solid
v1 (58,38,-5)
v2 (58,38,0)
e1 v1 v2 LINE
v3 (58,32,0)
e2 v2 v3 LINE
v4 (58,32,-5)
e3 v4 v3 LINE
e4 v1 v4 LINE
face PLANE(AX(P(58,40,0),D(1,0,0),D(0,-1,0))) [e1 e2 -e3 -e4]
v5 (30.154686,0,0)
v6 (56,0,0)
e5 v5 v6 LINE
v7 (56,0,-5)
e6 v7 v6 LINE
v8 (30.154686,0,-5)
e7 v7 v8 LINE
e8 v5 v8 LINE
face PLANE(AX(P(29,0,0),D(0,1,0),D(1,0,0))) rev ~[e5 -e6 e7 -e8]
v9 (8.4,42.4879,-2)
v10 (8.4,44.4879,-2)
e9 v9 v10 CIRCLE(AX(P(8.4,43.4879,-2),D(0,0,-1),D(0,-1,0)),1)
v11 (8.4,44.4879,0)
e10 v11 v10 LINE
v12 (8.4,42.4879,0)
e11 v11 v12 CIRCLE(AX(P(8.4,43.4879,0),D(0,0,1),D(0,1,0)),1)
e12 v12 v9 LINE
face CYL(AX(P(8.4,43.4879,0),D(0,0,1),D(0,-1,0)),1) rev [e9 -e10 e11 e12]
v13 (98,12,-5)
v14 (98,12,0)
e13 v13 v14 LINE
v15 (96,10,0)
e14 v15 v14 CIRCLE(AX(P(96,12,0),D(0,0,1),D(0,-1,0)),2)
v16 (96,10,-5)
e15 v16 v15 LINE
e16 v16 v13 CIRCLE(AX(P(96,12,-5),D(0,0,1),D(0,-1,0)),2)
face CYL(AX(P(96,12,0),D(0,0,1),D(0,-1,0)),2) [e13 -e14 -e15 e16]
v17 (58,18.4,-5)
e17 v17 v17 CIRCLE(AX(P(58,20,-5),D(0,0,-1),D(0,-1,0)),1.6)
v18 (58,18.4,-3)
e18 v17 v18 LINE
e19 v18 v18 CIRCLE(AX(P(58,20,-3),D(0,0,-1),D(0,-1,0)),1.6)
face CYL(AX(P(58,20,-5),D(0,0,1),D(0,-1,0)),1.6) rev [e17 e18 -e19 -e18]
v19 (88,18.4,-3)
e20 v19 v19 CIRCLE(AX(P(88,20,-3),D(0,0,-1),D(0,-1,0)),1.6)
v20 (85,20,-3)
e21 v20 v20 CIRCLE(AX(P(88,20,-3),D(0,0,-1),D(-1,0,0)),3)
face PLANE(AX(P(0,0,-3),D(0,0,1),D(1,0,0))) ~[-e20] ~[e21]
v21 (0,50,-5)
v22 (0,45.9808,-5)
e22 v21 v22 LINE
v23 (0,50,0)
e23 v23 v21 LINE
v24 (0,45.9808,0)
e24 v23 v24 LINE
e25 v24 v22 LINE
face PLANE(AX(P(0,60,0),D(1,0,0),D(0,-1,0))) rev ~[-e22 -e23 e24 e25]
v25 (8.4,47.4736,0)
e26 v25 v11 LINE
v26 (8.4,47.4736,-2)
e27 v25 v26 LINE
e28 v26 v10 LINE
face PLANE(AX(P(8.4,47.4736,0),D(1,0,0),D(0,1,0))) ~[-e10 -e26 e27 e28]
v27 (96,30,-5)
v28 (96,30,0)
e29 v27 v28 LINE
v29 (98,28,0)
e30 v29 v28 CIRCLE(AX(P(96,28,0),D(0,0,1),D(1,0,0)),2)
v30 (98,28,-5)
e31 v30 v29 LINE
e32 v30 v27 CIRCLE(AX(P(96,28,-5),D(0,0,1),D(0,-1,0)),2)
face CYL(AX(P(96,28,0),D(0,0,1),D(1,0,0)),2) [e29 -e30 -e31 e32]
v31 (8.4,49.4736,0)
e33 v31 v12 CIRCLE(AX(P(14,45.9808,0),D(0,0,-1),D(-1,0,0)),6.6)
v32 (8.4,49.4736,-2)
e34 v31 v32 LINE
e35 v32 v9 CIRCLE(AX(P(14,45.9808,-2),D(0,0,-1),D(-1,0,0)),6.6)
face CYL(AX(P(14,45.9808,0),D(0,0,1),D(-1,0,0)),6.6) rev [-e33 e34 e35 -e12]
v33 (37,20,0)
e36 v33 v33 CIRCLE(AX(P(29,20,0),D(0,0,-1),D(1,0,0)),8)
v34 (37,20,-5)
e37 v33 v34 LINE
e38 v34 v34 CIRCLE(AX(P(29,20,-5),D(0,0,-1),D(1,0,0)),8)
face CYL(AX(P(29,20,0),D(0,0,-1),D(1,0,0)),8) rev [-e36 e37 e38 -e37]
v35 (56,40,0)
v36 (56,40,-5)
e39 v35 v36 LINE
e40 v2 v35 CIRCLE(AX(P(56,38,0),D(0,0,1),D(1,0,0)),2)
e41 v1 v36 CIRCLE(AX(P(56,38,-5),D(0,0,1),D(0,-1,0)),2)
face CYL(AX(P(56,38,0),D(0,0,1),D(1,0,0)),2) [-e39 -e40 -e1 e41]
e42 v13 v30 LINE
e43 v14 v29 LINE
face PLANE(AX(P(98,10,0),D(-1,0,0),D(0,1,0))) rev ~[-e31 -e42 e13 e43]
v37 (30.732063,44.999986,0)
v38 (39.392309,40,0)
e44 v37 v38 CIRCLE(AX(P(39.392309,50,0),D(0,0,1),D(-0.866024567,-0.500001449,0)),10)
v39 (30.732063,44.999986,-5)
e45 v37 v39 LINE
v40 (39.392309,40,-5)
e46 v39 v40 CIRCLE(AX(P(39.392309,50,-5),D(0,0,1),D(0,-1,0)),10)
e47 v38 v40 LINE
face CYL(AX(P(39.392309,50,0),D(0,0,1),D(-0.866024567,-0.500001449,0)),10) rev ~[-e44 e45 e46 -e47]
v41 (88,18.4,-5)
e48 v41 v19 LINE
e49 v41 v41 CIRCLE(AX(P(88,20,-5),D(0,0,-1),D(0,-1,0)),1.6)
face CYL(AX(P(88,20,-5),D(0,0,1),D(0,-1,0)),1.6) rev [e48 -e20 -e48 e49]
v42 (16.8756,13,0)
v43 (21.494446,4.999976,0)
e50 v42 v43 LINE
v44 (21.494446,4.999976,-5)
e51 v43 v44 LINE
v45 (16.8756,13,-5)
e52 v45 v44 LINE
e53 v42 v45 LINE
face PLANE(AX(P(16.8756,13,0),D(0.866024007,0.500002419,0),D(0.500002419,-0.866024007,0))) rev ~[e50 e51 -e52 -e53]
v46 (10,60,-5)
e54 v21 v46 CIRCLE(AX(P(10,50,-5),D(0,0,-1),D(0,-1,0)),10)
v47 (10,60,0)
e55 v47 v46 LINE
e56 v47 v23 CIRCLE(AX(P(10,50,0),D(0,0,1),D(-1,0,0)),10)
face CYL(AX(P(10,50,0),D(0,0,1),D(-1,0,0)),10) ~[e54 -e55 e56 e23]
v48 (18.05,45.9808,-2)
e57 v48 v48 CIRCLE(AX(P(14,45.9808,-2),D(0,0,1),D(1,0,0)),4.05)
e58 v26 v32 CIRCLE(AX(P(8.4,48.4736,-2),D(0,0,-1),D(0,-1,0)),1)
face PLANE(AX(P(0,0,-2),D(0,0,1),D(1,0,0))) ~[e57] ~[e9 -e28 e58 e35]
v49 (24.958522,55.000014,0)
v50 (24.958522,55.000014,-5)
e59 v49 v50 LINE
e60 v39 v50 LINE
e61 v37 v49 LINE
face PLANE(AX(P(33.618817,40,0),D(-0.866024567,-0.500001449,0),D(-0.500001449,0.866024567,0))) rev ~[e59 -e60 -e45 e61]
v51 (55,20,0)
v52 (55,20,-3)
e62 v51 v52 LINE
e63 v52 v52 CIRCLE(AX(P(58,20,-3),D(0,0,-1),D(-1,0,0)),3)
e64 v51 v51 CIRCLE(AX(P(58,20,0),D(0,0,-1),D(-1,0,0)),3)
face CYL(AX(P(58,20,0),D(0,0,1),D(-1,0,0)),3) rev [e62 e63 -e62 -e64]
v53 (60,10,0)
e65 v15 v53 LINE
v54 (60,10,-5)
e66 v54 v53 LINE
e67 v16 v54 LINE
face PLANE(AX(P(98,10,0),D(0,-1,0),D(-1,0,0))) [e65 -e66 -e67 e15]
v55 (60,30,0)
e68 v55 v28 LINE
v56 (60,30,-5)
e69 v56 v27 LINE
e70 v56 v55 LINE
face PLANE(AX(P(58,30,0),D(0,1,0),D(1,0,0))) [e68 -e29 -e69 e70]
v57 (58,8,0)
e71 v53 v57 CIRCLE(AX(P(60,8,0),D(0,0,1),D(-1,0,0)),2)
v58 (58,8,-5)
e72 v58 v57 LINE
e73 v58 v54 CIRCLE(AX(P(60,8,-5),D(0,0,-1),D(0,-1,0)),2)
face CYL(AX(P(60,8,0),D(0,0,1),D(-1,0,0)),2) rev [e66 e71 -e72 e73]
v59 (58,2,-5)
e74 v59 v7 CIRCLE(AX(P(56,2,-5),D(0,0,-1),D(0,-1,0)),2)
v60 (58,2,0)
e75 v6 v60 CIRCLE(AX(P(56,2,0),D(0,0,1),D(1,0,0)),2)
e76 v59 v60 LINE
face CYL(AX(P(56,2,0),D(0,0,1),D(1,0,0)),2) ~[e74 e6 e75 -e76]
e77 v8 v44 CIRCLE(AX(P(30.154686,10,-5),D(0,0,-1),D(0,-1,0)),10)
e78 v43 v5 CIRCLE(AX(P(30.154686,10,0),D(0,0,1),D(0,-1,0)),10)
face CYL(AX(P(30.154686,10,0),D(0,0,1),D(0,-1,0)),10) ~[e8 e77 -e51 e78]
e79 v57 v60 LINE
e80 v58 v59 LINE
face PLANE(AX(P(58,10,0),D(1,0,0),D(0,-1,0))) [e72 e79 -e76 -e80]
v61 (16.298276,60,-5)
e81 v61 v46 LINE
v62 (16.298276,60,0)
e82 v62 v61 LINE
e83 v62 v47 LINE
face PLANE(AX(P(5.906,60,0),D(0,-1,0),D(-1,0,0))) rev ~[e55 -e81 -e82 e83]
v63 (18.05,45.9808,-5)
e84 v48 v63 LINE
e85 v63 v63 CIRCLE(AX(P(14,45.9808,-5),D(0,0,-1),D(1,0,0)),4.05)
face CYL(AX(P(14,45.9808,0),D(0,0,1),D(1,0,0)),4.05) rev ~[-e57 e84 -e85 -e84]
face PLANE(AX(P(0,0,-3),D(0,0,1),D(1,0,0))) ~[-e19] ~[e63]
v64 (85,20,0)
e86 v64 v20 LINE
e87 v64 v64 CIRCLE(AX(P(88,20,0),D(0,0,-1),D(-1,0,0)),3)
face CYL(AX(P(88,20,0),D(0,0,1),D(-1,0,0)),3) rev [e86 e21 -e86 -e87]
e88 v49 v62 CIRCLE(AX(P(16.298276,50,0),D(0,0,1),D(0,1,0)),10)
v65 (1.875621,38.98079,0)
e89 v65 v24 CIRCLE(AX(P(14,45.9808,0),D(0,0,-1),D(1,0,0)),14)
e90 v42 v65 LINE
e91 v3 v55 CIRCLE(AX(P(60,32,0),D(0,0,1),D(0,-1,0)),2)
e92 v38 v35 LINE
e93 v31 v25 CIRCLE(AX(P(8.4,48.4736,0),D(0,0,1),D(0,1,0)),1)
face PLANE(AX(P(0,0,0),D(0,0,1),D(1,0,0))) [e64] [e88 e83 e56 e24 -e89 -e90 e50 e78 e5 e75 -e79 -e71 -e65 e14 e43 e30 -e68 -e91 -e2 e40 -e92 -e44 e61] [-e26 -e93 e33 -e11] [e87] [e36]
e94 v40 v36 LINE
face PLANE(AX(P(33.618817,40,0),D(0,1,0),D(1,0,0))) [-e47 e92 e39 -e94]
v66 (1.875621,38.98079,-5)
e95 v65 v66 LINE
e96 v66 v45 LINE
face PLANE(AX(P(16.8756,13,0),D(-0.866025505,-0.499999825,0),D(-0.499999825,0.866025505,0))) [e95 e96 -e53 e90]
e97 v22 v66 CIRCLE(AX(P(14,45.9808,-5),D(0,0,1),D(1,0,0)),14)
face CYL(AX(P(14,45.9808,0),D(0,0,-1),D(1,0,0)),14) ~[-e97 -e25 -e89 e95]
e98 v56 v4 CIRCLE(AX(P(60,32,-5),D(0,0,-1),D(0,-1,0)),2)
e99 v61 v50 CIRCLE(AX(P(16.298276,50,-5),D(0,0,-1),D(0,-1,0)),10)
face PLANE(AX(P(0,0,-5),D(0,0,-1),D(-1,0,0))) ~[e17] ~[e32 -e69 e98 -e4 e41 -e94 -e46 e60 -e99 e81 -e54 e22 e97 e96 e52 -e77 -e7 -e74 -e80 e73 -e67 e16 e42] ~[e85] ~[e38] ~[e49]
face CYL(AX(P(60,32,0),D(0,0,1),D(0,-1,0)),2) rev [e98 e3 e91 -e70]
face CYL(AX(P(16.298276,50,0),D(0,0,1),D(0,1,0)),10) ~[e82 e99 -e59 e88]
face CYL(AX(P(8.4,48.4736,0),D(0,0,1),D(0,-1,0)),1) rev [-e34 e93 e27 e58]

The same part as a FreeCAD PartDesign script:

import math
import FreeCAD as App
import Part
import Sketcher

V = App.Vector
Q = App.Units.Quantity


def edges_at(feature, points):
    """Names of the edges that pass closest to the given points."""
    edges = feature.Shape.Edges
    near = lambda p: min(range(len(edges)), key=lambda i: edges[i].distToShape(Part.Vertex(*p))[0])
    return sorted({f"Edge{near(p) + 1}" for p in points})


def add_polygon(sketch, points):
    """Adds a closed chain of lines whose ends are joined by coincident constraints."""
    first, n = sketch.GeometryCount, len(points)
    for a, b in zip(points, points[1:] + points[:1]):
        sketch.addGeometry(Part.LineSegment(App.Vector(*a, 0), App.Vector(*b, 0)), False)
    for i in range(n):
        sketch.addConstraint(Sketcher.Constraint("Coincident", first + i, 2, first + (i + 1) % n, 1))

doc = App.newDocument("Part")
params = doc.addObject("Spreadsheet::Sheet", "Params")
for row, (alias, value) in enumerate([
    ("sketch1_diameter", "16 mm"),
    ("sketch1_radius", "14 mm"),
    ("sketch1_diameter2", "8.1 mm"),
    ("sketch1_width", "40 mm"),
    ("sketch1_height", "10 mm"),
    ("pad1_length", "5 mm"),
    ("sketch2_diameter", "3.2 mm"),
    ("hole_diameter", "3.2 mm"),
    ("hole_depth", "10 mm"),
    ("fillet_radius", "2 mm"),
    ("fillet2_radius", "10 mm"),
    ("sketch3_diameter", "6 mm"),
    ("pocket1_length", "3 mm"),
    ("sketch4_radius", "1 mm"),
    ("sketch4_radius2", "6.6 mm"),
    ("sketch4_diameter", "8.1 mm"),
    ("pocket2_length", "2 mm"),
    ("pocket3_length", "5 mm"),
], start=1):
    params.set(f"A{row}", alias)
    params.set(f"B{row}", "=" + value)
    params.setAlias(f"B{row}", alias)

body = doc.addObject("PartDesign::Body", "Body")

sketch1 = body.newObject("Sketcher::SketchObject", "Sketch")
sketch1.AttachmentSupport = (doc.getObject("XY_Plane"), [""])
sketch1.MapMode = "FlatFace"
sketch1.addGeometry(Part.LineSegment(V(58, 0, 0), V(58, 10, 0)), False)
sketch1.addGeometry(Part.LineSegment(V(58, 10, 0), V(98, 10, 0)), False)
sketch1.addGeometry(Part.LineSegment(V(98, 10, 0), V(98, 30, 0)), False)
sketch1.addGeometry(Part.LineSegment(V(98, 30, 0), V(58, 30, 0)), False)
sketch1.addGeometry(Part.LineSegment(V(58, 30, 0), V(58, 40, 0)), False)
sketch1.addGeometry(Part.LineSegment(V(58, 40, 0), V(33.6, 40, 0)), False)
sketch1.addGeometry(Part.LineSegment(V(33.6, 40, 0), V(22.1, 60, 0)), False)
sketch1.addGeometry(Part.LineSegment(V(22.1, 60, 0), V(0, 60, 0)), False)
sketch1.addGeometry(Part.LineSegment(V(0, 60, 0), V(0, 46, 0)), False)
sketch1.addGeometry(Part.ArcOfCircle(Part.Circle(V(14, 46, 0), V(0, 0, 1), 14), math.radians(180), math.radians(210)), False)
sketch1.addGeometry(Part.LineSegment(V(1.9, 39, 0), V(16.9, 13, 0)), False)
sketch1.addGeometry(Part.LineSegment(V(16.9, 13, 0), V(24.4, 0, 0)), False)
sketch1.addGeometry(Part.LineSegment(V(24.4, 0, 0), V(58, 0, 0)), False)
sketch1.addGeometry(Part.Circle(V(29, 20, 0), V(0, 0, 1), 8), False)
sketch1.addGeometry(Part.Circle(V(14, 46, 0), V(0, 0, 1), 4), False)
sketch1.addConstraint(Sketcher.Constraint("Coincident", 0, 2, 1, 1))
sketch1.addConstraint(Sketcher.Constraint("Coincident", 1, 2, 2, 1))
sketch1.addConstraint(Sketcher.Constraint("Coincident", 2, 2, 3, 1))
sketch1.addConstraint(Sketcher.Constraint("Coincident", 3, 2, 4, 1))
sketch1.addConstraint(Sketcher.Constraint("Coincident", 4, 2, 5, 1))
sketch1.addConstraint(Sketcher.Constraint("Coincident", 5, 2, 6, 1))
sketch1.addConstraint(Sketcher.Constraint("Coincident", 6, 2, 7, 1))
sketch1.addConstraint(Sketcher.Constraint("Coincident", 7, 2, 8, 1))
sketch1.addConstraint(Sketcher.Constraint("Tangent", 8, 2, 9, 1))
sketch1.addConstraint(Sketcher.Constraint("Tangent", 9, 2, 10, 1))
sketch1.addConstraint(Sketcher.Constraint("Coincident", 10, 2, 11, 1))
sketch1.addConstraint(Sketcher.Constraint("Coincident", 11, 2, 12, 1))
sketch1.addConstraint(Sketcher.Constraint("Coincident", 12, 2, 0, 1))
sketch1.addConstraint(Sketcher.Constraint("Vertical", 0))
sketch1.addConstraint(Sketcher.Constraint("Horizontal", 1))
sketch1.addConstraint(Sketcher.Constraint("Vertical", 2))
sketch1.addConstraint(Sketcher.Constraint("Horizontal", 3))
sketch1.addConstraint(Sketcher.Constraint("Vertical", 4))
sketch1.addConstraint(Sketcher.Constraint("Horizontal", 5))
sketch1.addConstraint(Sketcher.Constraint("Horizontal", 7))
sketch1.addConstraint(Sketcher.Constraint("Vertical", 8))
sketch1.addConstraint(Sketcher.Constraint("Horizontal", 12))
sketch1.addConstraint(Sketcher.Constraint("Coincident", 14, 3, 9, 3))
sketch1.addConstraint(Sketcher.Constraint("PointOnObject", 7, 2, -2))
sketch1.addConstraint(Sketcher.Constraint("PointOnObject", 11, 2, -1))
sketch1.addConstraint(Sketcher.Constraint("Parallel", 6, 10))
sketch1.addConstraint(Sketcher.Constraint("Parallel", 10, 11))
sketch1.addConstraint(Sketcher.Constraint("Vertical", 0, 2, 3, 2))
sketch1.addConstraint(Sketcher.Constraint("Equal", 0, 4))
sketch1.addConstraint(Sketcher.Constraint("Diameter", 13, Q("16 mm")))
sketch1.addConstraint(Sketcher.Constraint("Radius", 9, Q("14 mm")))
sketch1.addConstraint(Sketcher.Constraint("Diameter", 14, Q("8.1 mm")))
sketch1.addConstraint(Sketcher.Constraint("DistanceX", 1, 1, 1, 2, Q("40 mm")))
sketch1.addConstraint(Sketcher.Constraint("DistanceY", 0, 1, 0, 2, Q("10 mm")))
sketch1.addConstraint(Sketcher.Constraint("DistanceY", 2, 1, 2, 2, Q("20 mm")))
sketch1.addConstraint(Sketcher.Constraint("Angle", 10, Q("-60 deg")))
sketch1.addConstraint(Sketcher.Constraint("Distance", 10, Q("30 mm")))
sketch1.addConstraint(Sketcher.Constraint("DistanceY", -1, 1, 13, 3, Q("20 mm")))
sketch1.addConstraint(Sketcher.Constraint("DistanceX", -1, 1, 1, 2, Q("98 mm")))
sketch1.addConstraint(Sketcher.Constraint("DistanceY", -1, 1, 6, 2, Q("60 mm")))
sketch1.addConstraint(Sketcher.Constraint("DistanceX", 13, 3, 1, 2, Q("69 mm")))
sketch1.addConstraint(Sketcher.Constraint("DistanceY", -1, 1, 10, 2, Q("13 mm")))
sketch1.addConstraint(Sketcher.Constraint("DistanceX", 5, 2, 5, 1, Q("24.3812 mm")))
sketch1.setExpression("Constraints[29]", "Params.sketch1_diameter")
sketch1.setExpression("Constraints[30]", "Params.sketch1_radius")
sketch1.setExpression("Constraints[31]", "Params.sketch1_diameter2")
sketch1.setExpression("Constraints[32]", "Params.sketch1_width")
sketch1.setExpression("Constraints[33]", "Params.sketch1_height")
pad1 = body.newObject("PartDesign::Pad", "Pad")
pad1.Profile = sketch1
pad1.setExpression("Length", "Params.pad1_length")

sketch2 = body.newObject("Sketcher::SketchObject", "Sketch001")
sketch2.AttachmentSupport = (doc.getObject("XY_Plane"), [""])
sketch2.MapMode = "FlatFace"
sketch2.AttachmentOffset = App.Placement(V(0, 0, 5), App.Rotation())
sketch2.addGeometry(Part.Circle(V(88, 20, 0), V(0, 0, 1), 1.6), False)
sketch2.addGeometry(Part.Circle(V(58, 20, 0), V(0, 0, 1), 1.6), False)
sketch2.addConstraint(Sketcher.Constraint("Equal", 0, 1))
sketch2.addConstraint(Sketcher.Constraint("Horizontal", 0, 3, 1, 3))
sketch2.addConstraint(Sketcher.Constraint("Diameter", 0, Q("3.2 mm")))
sketch2.addConstraint(Sketcher.Constraint("DistanceX", -1, 1, 0, 3, Q("88 mm")))
sketch2.addConstraint(Sketcher.Constraint("DistanceY", -1, 1, 0, 3, Q("20 mm")))
sketch2.addConstraint(Sketcher.Constraint("DistanceX", -1, 1, 1, 3, Q("58 mm")))
sketch2.setExpression("Constraints[2]", "Params.sketch2_diameter")
doc.recompute()
hole = body.newObject("PartDesign::Hole", "Hole")
hole.Profile = sketch2
hole.ThreadType = "None"
hole.setExpression("Diameter", "Params.hole_diameter")
hole.DepthType = "Dimension"
hole.setExpression("Depth", "Params.hole_depth")
hole.DrillPoint = "Flat"
doc.recompute()

fillet = body.newObject("PartDesign::Fillet", "Fillet")
fillet.Base = (hole, edges_at(hole, [
    (58, 40, 2.5),
    (58, 30, 2.5),
    (98, 30, 2.5),
    (98, 10, 2.5),
    (58, 0, 2.5),
    (58, 10, 2.5),
]))
fillet.setExpression("Radius", "Params.fillet_radius")
doc.recompute()

fillet2 = body.newObject("PartDesign::Fillet", "Fillet001")
fillet2.Base = (fillet, edges_at(fillet, [
    (24.381, 0, 2.5),
    (0, 60, 2.5),
    (22.072, 60, 2.5),
    (33.619, 40, 2.5),
]))
fillet2.setExpression("Radius", "Params.fillet2_radius")

sketch3 = body.newObject("Sketcher::SketchObject", "Sketch002")
sketch3.AttachmentSupport = (doc.getObject("XY_Plane"), [""])
sketch3.MapMode = "FlatFace"
sketch3.addGeometry(Part.Circle(V(88, 20, 0), V(0, 0, 1), 3), False)
sketch3.addGeometry(Part.Circle(V(58, 20, 0), V(0, 0, 1), 3), False)
sketch3.addConstraint(Sketcher.Constraint("Equal", 0, 1))
sketch3.addConstraint(Sketcher.Constraint("Horizontal", 0, 3, 1, 3))
sketch3.addConstraint(Sketcher.Constraint("Diameter", 0, Q("6 mm")))
sketch3.addConstraint(Sketcher.Constraint("DistanceX", -1, 1, 0, 3, Q("88 mm")))
sketch3.addConstraint(Sketcher.Constraint("DistanceY", -1, 1, 0, 3, Q("20 mm")))
sketch3.addConstraint(Sketcher.Constraint("DistanceX", -1, 1, 1, 3, Q("58 mm")))
sketch3.setExpression("Constraints[2]", "Params.sketch3_diameter")
pocket1 = body.newObject("PartDesign::Pocket", "Pocket")
pocket1.Profile = sketch3
pocket1.setExpression("Length", "Params.pocket1_length")
pocket1.Reversed = True

sketch4 = body.newObject("Sketcher::SketchObject", "Sketch003")
sketch4.AttachmentSupport = (doc.getObject("XY_Plane"), [""])
sketch4.MapMode = "FlatFace"
sketch4.addGeometry(Part.LineSegment(V(8.4, 44.5, 0), V(8.4, 47.5, 0)), False)
sketch4.addGeometry(Part.ArcOfCircle(Part.Circle(V(8.4, 48.5, 0), V(0, 0, 1), 1), math.radians(90), math.radians(270)), False)
sketch4.addGeometry(Part.ArcOfCircle(Part.Circle(V(14, 46, 0), V(0, 0, 1), 6.6), math.radians(-148), math.radians(148)), False)
sketch4.addGeometry(Part.ArcOfCircle(Part.Circle(V(8.4, 43.5, 0), V(0, 0, 1), 1), math.radians(90), math.radians(270)), False)
sketch4.addGeometry(Part.Circle(V(14, 46, 0), V(0, 0, 1), 4), False)
sketch4.addConstraint(Sketcher.Constraint("Coincident", 0, 2, 1, 2))
sketch4.addConstraint(Sketcher.Constraint("Coincident", 1, 1, 2, 2))
sketch4.addConstraint(Sketcher.Constraint("Coincident", 2, 1, 3, 2))
sketch4.addConstraint(Sketcher.Constraint("Coincident", 3, 1, 0, 1))
sketch4.addConstraint(Sketcher.Constraint("Vertical", 0))
sketch4.addConstraint(Sketcher.Constraint("Coincident", 4, 3, 2, 3))
sketch4.addConstraint(Sketcher.Constraint("Equal", 1, 3))
sketch4.addConstraint(Sketcher.Constraint("Vertical", 1, 3, 3, 3))
sketch4.addConstraint(Sketcher.Constraint("Vertical", 3, 3, 0, 2))
sketch4.addConstraint(Sketcher.Constraint("Vertical", 0, 2, 1, 1))
sketch4.addConstraint(Sketcher.Constraint("Vertical", 1, 1, 2, 1))
sketch4.addConstraint(Sketcher.Constraint("Radius", 1, Q("1 mm")))
sketch4.addConstraint(Sketcher.Constraint("Radius", 2, Q("6.6 mm")))
sketch4.addConstraint(Sketcher.Constraint("Diameter", 4, Q("8.1 mm")))
sketch4.addConstraint(Sketcher.Constraint("DistanceX", 1, 3, 2, 3, Q("5.6 mm")))
sketch4.addConstraint(Sketcher.Constraint("DistanceX", -1, 1, 2, 3, Q("14 mm")))
sketch4.addConstraint(Sketcher.Constraint("DistanceY", -1, 1, 3, 3, Q("43.488 mm")))
sketch4.setExpression("Constraints[11]", "Params.sketch4_radius")
sketch4.setExpression("Constraints[12]", "Params.sketch4_radius2")
sketch4.setExpression("Constraints[13]", "Params.sketch4_diameter")
pocket2 = body.newObject("PartDesign::Pocket", "Pocket001")
pocket2.Profile = sketch4
pocket2.setExpression("Length", "Params.pocket2_length")
pocket2.Reversed = True
doc.recompute()

mirrored = body.newObject("PartDesign::Mirrored", "Mirrored")
mirrored.TransformMode = "Transform body"
mirrored.MirrorPlane = (doc.getObject("XY_Plane"), [""])
body.Tip = mirrored

sketch5 = body.newObject("Sketcher::SketchObject", "Sketch004")
sketch5.AttachmentSupport = (doc.getObject("XY_Plane"), [""])
sketch5.MapMode = "FlatFace"
sketch5.AttachmentOffset = App.Placement(V(0, 0, 5), App.Rotation())
add_polygon(sketch5, [(121, 82), (-29, 82), (-29, -19), (121, -19)])
sketch5.addConstraint(Sketcher.Constraint("Horizontal", 0))
sketch5.addConstraint(Sketcher.Constraint("Vertical", 1))
sketch5.addConstraint(Sketcher.Constraint("Horizontal", 2))
sketch5.addConstraint(Sketcher.Constraint("Vertical", 3))
sketch5.addConstraint(Sketcher.Constraint("DistanceX", 0, 2, 0, 1, Q("149.5307 mm")))
sketch5.addConstraint(Sketcher.Constraint("DistanceY", 1, 2, 1, 1, Q("101.1733 mm")))
sketch5.addConstraint(Sketcher.Constraint("DistanceX", 0, 2, -1, 1, Q("28.979 mm")))
sketch5.addConstraint(Sketcher.Constraint("DistanceY", -1, 1, 0, 2, Q("82.3627 mm")))
pocket3 = body.newObject("PartDesign::Pocket", "Pocket002")
pocket3.Profile = sketch5
pocket3.setExpression("Length", "Params.pocket3_length")

doc.recompute()
